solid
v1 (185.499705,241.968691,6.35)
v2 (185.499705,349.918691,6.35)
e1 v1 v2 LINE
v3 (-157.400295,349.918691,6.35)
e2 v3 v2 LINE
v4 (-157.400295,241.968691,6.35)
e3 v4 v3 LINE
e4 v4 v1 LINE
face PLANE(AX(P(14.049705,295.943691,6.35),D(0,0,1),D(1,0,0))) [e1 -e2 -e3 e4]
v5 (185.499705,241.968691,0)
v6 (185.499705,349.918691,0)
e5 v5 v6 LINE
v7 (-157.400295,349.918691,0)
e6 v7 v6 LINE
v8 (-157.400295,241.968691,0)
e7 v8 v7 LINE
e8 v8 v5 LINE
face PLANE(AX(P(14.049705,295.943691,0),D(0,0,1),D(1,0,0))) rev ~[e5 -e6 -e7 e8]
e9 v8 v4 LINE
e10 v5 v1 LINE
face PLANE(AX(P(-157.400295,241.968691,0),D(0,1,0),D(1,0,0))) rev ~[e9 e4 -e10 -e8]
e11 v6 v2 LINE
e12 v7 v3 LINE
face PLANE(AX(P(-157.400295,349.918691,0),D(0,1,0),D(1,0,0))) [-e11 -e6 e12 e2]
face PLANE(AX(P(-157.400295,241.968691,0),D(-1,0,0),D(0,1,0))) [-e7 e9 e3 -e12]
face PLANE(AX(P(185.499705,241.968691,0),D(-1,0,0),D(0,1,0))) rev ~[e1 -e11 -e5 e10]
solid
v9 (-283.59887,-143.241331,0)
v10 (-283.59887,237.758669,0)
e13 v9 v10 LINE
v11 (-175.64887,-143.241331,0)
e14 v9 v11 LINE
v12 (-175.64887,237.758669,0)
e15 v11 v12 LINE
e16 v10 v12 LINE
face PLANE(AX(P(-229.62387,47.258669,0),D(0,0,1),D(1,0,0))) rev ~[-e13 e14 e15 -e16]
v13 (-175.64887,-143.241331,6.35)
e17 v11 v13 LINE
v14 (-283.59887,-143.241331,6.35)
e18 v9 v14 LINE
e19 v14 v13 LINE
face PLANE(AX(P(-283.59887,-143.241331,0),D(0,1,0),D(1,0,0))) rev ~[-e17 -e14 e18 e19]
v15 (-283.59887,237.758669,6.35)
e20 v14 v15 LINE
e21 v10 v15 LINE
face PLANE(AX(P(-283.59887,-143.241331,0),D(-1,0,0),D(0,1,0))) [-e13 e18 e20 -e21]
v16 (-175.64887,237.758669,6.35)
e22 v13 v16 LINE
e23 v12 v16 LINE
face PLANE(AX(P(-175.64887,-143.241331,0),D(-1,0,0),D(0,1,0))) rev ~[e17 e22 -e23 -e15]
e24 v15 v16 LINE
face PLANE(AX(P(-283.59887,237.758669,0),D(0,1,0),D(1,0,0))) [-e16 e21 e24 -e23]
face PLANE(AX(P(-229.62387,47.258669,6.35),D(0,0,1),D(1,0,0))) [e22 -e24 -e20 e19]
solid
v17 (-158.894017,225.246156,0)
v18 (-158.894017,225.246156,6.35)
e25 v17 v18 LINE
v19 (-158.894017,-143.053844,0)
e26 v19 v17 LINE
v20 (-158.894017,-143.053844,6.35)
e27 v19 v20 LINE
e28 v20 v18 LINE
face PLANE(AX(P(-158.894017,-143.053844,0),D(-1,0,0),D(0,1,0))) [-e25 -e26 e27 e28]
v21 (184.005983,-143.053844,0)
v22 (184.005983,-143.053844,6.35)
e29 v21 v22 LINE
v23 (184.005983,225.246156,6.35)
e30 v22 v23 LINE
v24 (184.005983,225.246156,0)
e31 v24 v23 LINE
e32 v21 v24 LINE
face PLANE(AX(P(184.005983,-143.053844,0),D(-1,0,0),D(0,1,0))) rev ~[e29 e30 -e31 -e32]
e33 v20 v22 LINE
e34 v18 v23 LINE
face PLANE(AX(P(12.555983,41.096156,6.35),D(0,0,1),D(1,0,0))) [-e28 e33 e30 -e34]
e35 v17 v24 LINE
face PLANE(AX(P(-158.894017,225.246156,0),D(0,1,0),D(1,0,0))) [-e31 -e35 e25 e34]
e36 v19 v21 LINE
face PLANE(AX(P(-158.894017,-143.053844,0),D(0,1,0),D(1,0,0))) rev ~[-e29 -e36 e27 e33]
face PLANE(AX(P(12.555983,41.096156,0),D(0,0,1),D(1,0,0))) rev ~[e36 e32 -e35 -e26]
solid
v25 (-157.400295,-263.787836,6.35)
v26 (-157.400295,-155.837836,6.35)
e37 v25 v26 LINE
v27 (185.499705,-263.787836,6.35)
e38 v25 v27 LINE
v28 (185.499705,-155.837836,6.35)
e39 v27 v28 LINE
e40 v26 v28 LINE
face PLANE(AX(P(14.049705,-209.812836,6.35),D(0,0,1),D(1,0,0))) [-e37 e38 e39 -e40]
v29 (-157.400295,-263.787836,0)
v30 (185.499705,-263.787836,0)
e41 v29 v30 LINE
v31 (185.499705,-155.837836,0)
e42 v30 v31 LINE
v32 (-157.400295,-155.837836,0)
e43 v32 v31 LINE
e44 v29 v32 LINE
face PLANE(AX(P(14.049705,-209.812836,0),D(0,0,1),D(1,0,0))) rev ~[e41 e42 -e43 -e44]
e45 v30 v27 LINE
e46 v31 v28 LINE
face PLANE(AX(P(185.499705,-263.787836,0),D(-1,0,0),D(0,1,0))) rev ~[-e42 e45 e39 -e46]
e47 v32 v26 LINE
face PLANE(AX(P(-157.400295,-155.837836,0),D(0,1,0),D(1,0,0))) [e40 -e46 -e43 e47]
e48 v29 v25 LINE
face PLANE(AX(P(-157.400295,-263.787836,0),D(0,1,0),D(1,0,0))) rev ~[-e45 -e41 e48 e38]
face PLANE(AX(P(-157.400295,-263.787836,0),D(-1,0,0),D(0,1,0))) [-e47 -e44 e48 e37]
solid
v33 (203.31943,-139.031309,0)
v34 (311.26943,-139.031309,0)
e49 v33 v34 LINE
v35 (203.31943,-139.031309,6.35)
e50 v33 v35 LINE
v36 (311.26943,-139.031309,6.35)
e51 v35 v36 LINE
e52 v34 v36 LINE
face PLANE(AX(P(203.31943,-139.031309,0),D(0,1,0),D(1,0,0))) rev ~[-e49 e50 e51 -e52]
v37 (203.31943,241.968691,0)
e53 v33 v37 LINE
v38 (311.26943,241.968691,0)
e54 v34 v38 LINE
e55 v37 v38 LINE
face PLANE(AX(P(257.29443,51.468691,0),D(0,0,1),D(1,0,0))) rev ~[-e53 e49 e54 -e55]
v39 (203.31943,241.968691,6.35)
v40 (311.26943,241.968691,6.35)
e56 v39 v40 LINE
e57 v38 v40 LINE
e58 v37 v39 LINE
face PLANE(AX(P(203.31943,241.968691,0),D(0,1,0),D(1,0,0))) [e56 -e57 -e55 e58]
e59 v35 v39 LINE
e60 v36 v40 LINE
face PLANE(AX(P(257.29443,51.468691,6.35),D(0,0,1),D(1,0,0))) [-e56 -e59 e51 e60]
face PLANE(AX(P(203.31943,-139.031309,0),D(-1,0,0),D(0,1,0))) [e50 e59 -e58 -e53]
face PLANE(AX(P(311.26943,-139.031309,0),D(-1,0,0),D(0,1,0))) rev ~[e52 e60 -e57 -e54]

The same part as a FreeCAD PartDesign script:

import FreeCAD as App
import Part
import Sketcher
Q = App.Units.Quantity

doc = App.newDocument("Part")
params = doc.addObject("Spreadsheet::Sheet", "Params")
for row, (alias, value) in enumerate([
    ("sketch1_width", "13.5 in"),
    ("sketch1_height", "14.5 in"),
    ("pad1_length", "0.25 in"),
    ("sketch2_height", "15 in"),
    ("sketch2_width", "13.5 in"),
    ("sketch2_width2", "4.25 in"),
    ("pad2_length", "0.25 in"),
], start=1):
    params.set(f"A{row}", alias)
    params.set(f"B{row}", "=" + value)
    params.setAlias(f"B{row}", alias)

body = doc.addObject("PartDesign::Body", "Body")

# Sketch on XY plane
sketch1 = doc.addObject("Sketcher::SketchObject", "Sketch")
body.addObject(sketch1)
sketch1.AttachmentSupport = (doc.XY_Plane, [""])
sketch1.MapMode = "FlatFace"
sketch1.addGeometry(Part.LineSegment(App.Vector(-159, 225, 0), App.Vector(-159, -143, 0)), False)
sketch1.addGeometry(Part.LineSegment(App.Vector(-159, -143, 0), App.Vector(184, -143, 0)), False)
sketch1.addGeometry(Part.LineSegment(App.Vector(184, -143, 0), App.Vector(184, 225, 0)), False)
sketch1.addGeometry(Part.LineSegment(App.Vector(184, 225, 0), App.Vector(-159, 225, 0)), False)
sketch1.addConstraint(Sketcher.Constraint("Coincident", 0, 2, 1, 1))
sketch1.addConstraint(Sketcher.Constraint("Coincident", 1, 2, 2, 1))
sketch1.addConstraint(Sketcher.Constraint("Coincident", 2, 2, 3, 1))
sketch1.addConstraint(Sketcher.Constraint("Coincident", 3, 2, 0, 1))
sketch1.addConstraint(Sketcher.Constraint("Vertical", 0))
sketch1.addConstraint(Sketcher.Constraint("Horizontal", 1))
sketch1.addConstraint(Sketcher.Constraint("Vertical", 2))
sketch1.addConstraint(Sketcher.Constraint("Horizontal", 3))
sketch1.addConstraint(Sketcher.Constraint("DistanceX", 1, 1, 1, 2, Q("13.5 in")))
sketch1.addConstraint(Sketcher.Constraint("DistanceY", 0, 2, 0, 1, Q("14.5 in")))
sketch1.addConstraint(Sketcher.Constraint("DistanceX", 0, 2, -1, 1, Q("158.894017 mm")))
sketch1.addConstraint(Sketcher.Constraint("DistanceY", 0, 2, -1, 1, Q("143.053844 mm")))
sketch1.setExpression("Constraints[8]", "Params.sketch1_width")
sketch1.setExpression("Constraints[9]", "Params.sketch1_height")
pad1 = doc.addObject("PartDesign::Pad", "Pad")
body.addObject(pad1)
pad1.Profile = sketch1
pad1.setExpression("Length", "Params.pad1_length")
body2 = doc.addObject("PartDesign::Body", "Body001")
body2.AllowCompound = True

# Sketch on XY plane
sketch2 = doc.addObject("Sketcher::SketchObject", "Sketch001")
body2.addObject(sketch2)
sketch2.AttachmentSupport = (doc.getObject("XY_Plane001"), [""])
sketch2.MapMode = "FlatFace"
sketch2.addGeometry(Part.LineSegment(App.Vector(203, 242, 0), App.Vector(203, -139, 0)), False)
sketch2.addGeometry(Part.LineSegment(App.Vector(203, -139, 0), App.Vector(311, -139, 0)), False)
sketch2.addGeometry(Part.LineSegment(App.Vector(311, -139, 0), App.Vector(311, 242, 0)), False)
sketch2.addGeometry(Part.LineSegment(App.Vector(311, 242, 0), App.Vector(203, 242, 0)), False)
sketch2.addGeometry(Part.LineSegment(App.Vector(-157, -156, 0), App.Vector(-157, -264, 0)), False)
sketch2.addGeometry(Part.LineSegment(App.Vector(-157, -264, 0), App.Vector(185, -264, 0)), False)
sketch2.addGeometry(Part.LineSegment(App.Vector(185, -264, 0), App.Vector(185, -156, 0)), False)
sketch2.addGeometry(Part.LineSegment(App.Vector(185, -156, 0), App.Vector(-157, -156, 0)), False)
sketch2.addGeometry(Part.LineSegment(App.Vector(-284, 238, 0), App.Vector(-284, -143, 0)), False)
sketch2.addGeometry(Part.LineSegment(App.Vector(-284, -143, 0), App.Vector(-176, -143, 0)), False)
sketch2.addGeometry(Part.LineSegment(App.Vector(-176, -143, 0), App.Vector(-176, 238, 0)), False)
sketch2.addGeometry(Part.LineSegment(App.Vector(-176, 238, 0), App.Vector(-284, 238, 0)), False)
sketch2.addGeometry(Part.LineSegment(App.Vector(-157, 350, 0), App.Vector(-157, 242, 0)), False)
sketch2.addGeometry(Part.LineSegment(App.Vector(-157, 242, 0), App.Vector(185, 242, 0)), False)
sketch2.addGeometry(Part.LineSegment(App.Vector(185, 242, 0), App.Vector(185, 350, 0)), False)
sketch2.addGeometry(Part.LineSegment(App.Vector(185, 350, 0), App.Vector(-157, 350, 0)), False)
sketch2.addConstraint(Sketcher.Constraint("Coincident", 0, 2, 1, 1))
sketch2.addConstraint(Sketcher.Constraint("Coincident", 1, 2, 2, 1))
sketch2.addConstraint(Sketcher.Constraint("Coincident", 2, 2, 3, 1))
sketch2.addConstraint(Sketcher.Constraint("Coincident", 3, 2, 0, 1))
sketch2.addConstraint(Sketcher.Constraint("Coincident", 4, 2, 5, 1))
sketch2.addConstraint(Sketcher.Constraint("Coincident", 5, 2, 6, 1))
sketch2.addConstraint(Sketcher.Constraint("Coincident", 6, 2, 7, 1))
sketch2.addConstraint(Sketcher.Constraint("Coincident", 7, 2, 4, 1))
sketch2.addConstraint(Sketcher.Constraint("Coincident", 8, 2, 9, 1))
sketch2.addConstraint(Sketcher.Constraint("Coincident", 9, 2, 10, 1))
sketch2.addConstraint(Sketcher.Constraint("Coincident", 10, 2, 11, 1))
sketch2.addConstraint(Sketcher.Constraint("Coincident", 11, 2, 8, 1))
sketch2.addConstraint(Sketcher.Constraint("Coincident", 12, 2, 13, 1))
sketch2.addConstraint(Sketcher.Constraint("Coincident", 13, 2, 14, 1))
sketch2.addConstraint(Sketcher.Constraint("Coincident", 14, 2, 15, 1))
sketch2.addConstraint(Sketcher.Constraint("Coincident", 15, 2, 12, 1))
sketch2.addConstraint(Sketcher.Constraint("Vertical", 0))
sketch2.addConstraint(Sketcher.Constraint("Horizontal", 1))
sketch2.addConstraint(Sketcher.Constraint("Vertical", 2))
sketch2.addConstraint(Sketcher.Constraint("Horizontal", 3))
sketch2.addConstraint(Sketcher.Constraint("Vertical", 4))
sketch2.addConstraint(Sketcher.Constraint("Horizontal", 5))
sketch2.addConstraint(Sketcher.Constraint("Vertical", 6))
sketch2.addConstraint(Sketcher.Constraint("Horizontal", 7))
sketch2.addConstraint(Sketcher.Constraint("Vertical", 8))
sketch2.addConstraint(Sketcher.Constraint("Horizontal", 9))
sketch2.addConstraint(Sketcher.Constraint("Vertical", 10))
sketch2.addConstraint(Sketcher.Constraint("Horizontal", 11))
sketch2.addConstraint(Sketcher.Constraint("Vertical", 12))
sketch2.addConstraint(Sketcher.Constraint("Horizontal", 13))
sketch2.addConstraint(Sketcher.Constraint("Vertical", 14))
sketch2.addConstraint(Sketcher.Constraint("Horizontal", 15))
sketch2.addConstraint(Sketcher.Constraint("Horizontal", 3, 2, 12, 2))
sketch2.addConstraint(Sketcher.Constraint("Vertical", 7, 2, 12, 2))
sketch2.addConstraint(Sketcher.Constraint("Vertical", 6, 2, 13, 2))
sketch2.addConstraint(Sketcher.Constraint("Equal", 3, 9))
sketch2.addConstraint(Sketcher.Constraint("Equal", 11, 4))
sketch2.addConstraint(Sketcher.Constraint("Equal", 2, 8))
sketch2.addConstraint(Sketcher.Constraint("Equal", 6, 12))
sketch2.addConstraint(Sketcher.Constraint("DistanceY", 0, 2, 0, 1, Q("15 in")))
sketch2.addConstraint(Sketcher.Constraint("DistanceX", 5, 1, 5, 2, Q("13.5 in")))
sketch2.addConstraint(Sketcher.Constraint("DistanceX", 1, 1, 1, 2, Q("4.25 in")))
sketch2.addConstraint(Sketcher.Constraint("DistanceX", 8, 2, 0, 2, Q("486.9183 mm")))
sketch2.addConstraint(Sketcher.Constraint("DistanceX", -1, 1, 0, 2, Q("203.31943 mm")))
sketch2.addConstraint(Sketcher.Constraint("DistanceY", 0, 2, -1, 1, Q("139.031309 mm")))
sketch2.addConstraint(Sketcher.Constraint("DistanceY", 8, 2, -1, 1, Q("143.241331 mm")))
sketch2.addConstraint(Sketcher.Constraint("DistanceX", 4, 2, -1, 1, Q("157.400295 mm")))
sketch2.addConstraint(Sketcher.Constraint("DistanceY", 4, 2, -1, 1, Q("263.787836 mm")))
sketch2.setExpression("Constraints[39]", "Params.sketch2_height")
sketch2.setExpression("Constraints[40]", "Params.sketch2_width")
sketch2.setExpression("Constraints[41]", "Params.sketch2_width2")
pad2 = doc.addObject("PartDesign::Pad", "Pad001")
body2.addObject(pad2)
pad2.Profile = sketch2
pad2.setExpression("Length", "Params.pad2_length")

doc.recompute()
